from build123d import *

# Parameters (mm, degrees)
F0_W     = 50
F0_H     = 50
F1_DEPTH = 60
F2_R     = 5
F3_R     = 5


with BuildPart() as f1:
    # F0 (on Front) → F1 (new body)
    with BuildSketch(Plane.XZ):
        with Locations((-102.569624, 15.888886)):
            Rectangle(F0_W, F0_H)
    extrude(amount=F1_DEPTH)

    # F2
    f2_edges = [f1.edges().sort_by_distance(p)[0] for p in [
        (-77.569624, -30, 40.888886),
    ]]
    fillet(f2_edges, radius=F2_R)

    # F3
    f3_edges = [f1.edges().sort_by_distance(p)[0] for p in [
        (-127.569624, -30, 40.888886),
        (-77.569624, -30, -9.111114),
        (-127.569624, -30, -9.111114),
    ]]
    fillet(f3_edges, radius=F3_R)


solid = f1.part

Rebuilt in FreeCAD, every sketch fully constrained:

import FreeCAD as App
import Part
import Sketcher
from FreeCAD import Vector
Q = App.Units.Quantity


def edges_at(feature, points):
    """Names of the edges that pass closest to the given points."""
    edges = feature.Shape.Edges
    near = lambda p: min(range(len(edges)), key=lambda i: edges[i].distToShape(Part.Vertex(*p))[0])
    return sorted({f"Edge{near(p) + 1}" for p in points})

doc = App.newDocument("Part")
body = doc.addObject("PartDesign::Body", "Body")

sketch1 = body.newObject("Sketcher::SketchObject", "Sketch")
sketch1.AttachmentSupport = (doc.getObject("XZ_Plane"), [""])
sketch1.MapMode = "FlatFace"
sketch1.addGeometry([
    Part.LineSegment(Vector(-128, 41, 0), Vector(-128, -9, 0)),
    Part.LineSegment(Vector(-128, -9, 0), Vector(-78, -9, 0)),
    Part.LineSegment(Vector(-78, -9, 0), Vector(-78, 41, 0)),
    Part.LineSegment(Vector(-78, 41, 0), Vector(-128, 41, 0)),
], False)
sketch1.addConstraint([
    Sketcher.Constraint("Coincident", 0, 2, 1, 1),
    Sketcher.Constraint("Coincident", 1, 2, 2, 1),
    Sketcher.Constraint("Coincident", 2, 2, 3, 1),
    Sketcher.Constraint("Coincident", 3, 2, 0, 1),
    Sketcher.Constraint("Vertical", 0),
    Sketcher.Constraint("Horizontal", 1),
    Sketcher.Constraint("Vertical", 2),
    Sketcher.Constraint("Horizontal", 3),
    Sketcher.Constraint("Equal", 3, 0),
    Sketcher.Constraint("DistanceX", 1, 1, 1, 2, Q("50 mm")),
    Sketcher.Constraint("DistanceX", 0, 2, -1, 1, Q("127.569624 mm")),
    Sketcher.Constraint("DistanceY", 0, 2, -1, 1, Q("9.111114 mm")),
])
pad1 = body.newObject("PartDesign::Pad", "Pad")
pad1.Profile = sketch1
pad1.Length = 60
doc.recompute()

fillet = body.newObject("PartDesign::Fillet", "Fillet")
fillet.Base = (pad1, edges_at(pad1, [(-77.57, -30, 40.889)]))
fillet.Radius = 5
doc.recompute()

fillet2 = body.newObject("PartDesign::Fillet", "Fillet001")
fillet2.Base = (fillet, edges_at(fillet, [(-127.57, -30, 40.889), (-77.57, -30, -9.111), (-127.57, -30, -9.111)]))
fillet2.Radius = 5

doc.recompute()
